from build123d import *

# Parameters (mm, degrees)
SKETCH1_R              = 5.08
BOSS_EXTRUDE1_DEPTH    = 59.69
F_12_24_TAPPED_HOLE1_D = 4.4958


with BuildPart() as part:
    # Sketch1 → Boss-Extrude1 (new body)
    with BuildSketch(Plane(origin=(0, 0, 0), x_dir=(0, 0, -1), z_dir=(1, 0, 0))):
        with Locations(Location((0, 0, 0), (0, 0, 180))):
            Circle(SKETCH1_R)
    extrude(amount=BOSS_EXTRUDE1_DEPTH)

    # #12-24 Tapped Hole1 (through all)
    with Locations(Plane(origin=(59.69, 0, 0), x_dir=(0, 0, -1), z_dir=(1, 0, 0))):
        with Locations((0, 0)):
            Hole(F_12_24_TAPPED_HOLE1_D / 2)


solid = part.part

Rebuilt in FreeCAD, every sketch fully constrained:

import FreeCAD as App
import Part
import Sketcher
from FreeCAD import Vector
Q = App.Units.Quantity

doc = App.newDocument("Part")
params = doc.addObject("Spreadsheet::Sheet", "Params")
for row, (alias, value) in enumerate([
    ("sketch1_diameter", "0.4 in"),
    ("pad1_length", "2.35 in"),
    ("sketch2_diameter", "0.177 in"),
    ("hole_diameter", "0.177 in"),
], start=1):
    params.set(f"A{row}", alias)
    params.set(f"B{row}", "=" + value)
    params.setAlias(f"B{row}", alias)

body = doc.addObject("PartDesign::Body", "Body")

# Sketch on YZ plane
sketch1 = body.newObject("Sketcher::SketchObject", "Sketch")
sketch1.AttachmentSupport = (doc.getObject("YZ_Plane"), [""])
sketch1.MapMode = "FlatFace"
sketch1.addGeometry(Part.Circle(Vector(0, 0, 0), Vector(0, 0, 1), 5), False)
sketch1.addConstraint(Sketcher.Constraint("Coincident", 0, 3, -1, 1))
sketch1.addConstraint(Sketcher.Constraint("Diameter", 0, Q("0.4 in")))
sketch1.setExpression("Constraints[1]", "Params.sketch1_diameter")
pad1 = body.newObject("PartDesign::Pad", "Pad")
pad1.Profile = sketch1
pad1.setExpression("Length", "Params.pad1_length")

# Sketch on YZ plane
sketch2 = body.newObject("Sketcher::SketchObject", "Sketch001")
sketch2.AttachmentSupport = (doc.getObject("YZ_Plane"), [""])
sketch2.MapMode = "FlatFace"
sketch2.AttachmentOffset = App.Placement(Vector(0, 0, 2.35 * 25.4), App.Rotation())
sketch2.addGeometry(Part.Circle(Vector(0, 0, 0), Vector(0, 0, 1), 2.2), False)
sketch2.addConstraint(Sketcher.Constraint("Coincident", 0, 3, -1, 1))
sketch2.addConstraint(Sketcher.Constraint("Diameter", 0, Q("0.177 in")))
sketch2.setExpression("Constraints[1]", "Params.sketch2_diameter")
doc.recompute()
hole = body.newObject("PartDesign::Hole", "Hole")
hole.Profile = sketch2
hole.ThreadType = "None"
hole.setExpression("Diameter", "Params.hole_diameter")
hole.DepthType = "ThroughAll"

doc.recompute()
